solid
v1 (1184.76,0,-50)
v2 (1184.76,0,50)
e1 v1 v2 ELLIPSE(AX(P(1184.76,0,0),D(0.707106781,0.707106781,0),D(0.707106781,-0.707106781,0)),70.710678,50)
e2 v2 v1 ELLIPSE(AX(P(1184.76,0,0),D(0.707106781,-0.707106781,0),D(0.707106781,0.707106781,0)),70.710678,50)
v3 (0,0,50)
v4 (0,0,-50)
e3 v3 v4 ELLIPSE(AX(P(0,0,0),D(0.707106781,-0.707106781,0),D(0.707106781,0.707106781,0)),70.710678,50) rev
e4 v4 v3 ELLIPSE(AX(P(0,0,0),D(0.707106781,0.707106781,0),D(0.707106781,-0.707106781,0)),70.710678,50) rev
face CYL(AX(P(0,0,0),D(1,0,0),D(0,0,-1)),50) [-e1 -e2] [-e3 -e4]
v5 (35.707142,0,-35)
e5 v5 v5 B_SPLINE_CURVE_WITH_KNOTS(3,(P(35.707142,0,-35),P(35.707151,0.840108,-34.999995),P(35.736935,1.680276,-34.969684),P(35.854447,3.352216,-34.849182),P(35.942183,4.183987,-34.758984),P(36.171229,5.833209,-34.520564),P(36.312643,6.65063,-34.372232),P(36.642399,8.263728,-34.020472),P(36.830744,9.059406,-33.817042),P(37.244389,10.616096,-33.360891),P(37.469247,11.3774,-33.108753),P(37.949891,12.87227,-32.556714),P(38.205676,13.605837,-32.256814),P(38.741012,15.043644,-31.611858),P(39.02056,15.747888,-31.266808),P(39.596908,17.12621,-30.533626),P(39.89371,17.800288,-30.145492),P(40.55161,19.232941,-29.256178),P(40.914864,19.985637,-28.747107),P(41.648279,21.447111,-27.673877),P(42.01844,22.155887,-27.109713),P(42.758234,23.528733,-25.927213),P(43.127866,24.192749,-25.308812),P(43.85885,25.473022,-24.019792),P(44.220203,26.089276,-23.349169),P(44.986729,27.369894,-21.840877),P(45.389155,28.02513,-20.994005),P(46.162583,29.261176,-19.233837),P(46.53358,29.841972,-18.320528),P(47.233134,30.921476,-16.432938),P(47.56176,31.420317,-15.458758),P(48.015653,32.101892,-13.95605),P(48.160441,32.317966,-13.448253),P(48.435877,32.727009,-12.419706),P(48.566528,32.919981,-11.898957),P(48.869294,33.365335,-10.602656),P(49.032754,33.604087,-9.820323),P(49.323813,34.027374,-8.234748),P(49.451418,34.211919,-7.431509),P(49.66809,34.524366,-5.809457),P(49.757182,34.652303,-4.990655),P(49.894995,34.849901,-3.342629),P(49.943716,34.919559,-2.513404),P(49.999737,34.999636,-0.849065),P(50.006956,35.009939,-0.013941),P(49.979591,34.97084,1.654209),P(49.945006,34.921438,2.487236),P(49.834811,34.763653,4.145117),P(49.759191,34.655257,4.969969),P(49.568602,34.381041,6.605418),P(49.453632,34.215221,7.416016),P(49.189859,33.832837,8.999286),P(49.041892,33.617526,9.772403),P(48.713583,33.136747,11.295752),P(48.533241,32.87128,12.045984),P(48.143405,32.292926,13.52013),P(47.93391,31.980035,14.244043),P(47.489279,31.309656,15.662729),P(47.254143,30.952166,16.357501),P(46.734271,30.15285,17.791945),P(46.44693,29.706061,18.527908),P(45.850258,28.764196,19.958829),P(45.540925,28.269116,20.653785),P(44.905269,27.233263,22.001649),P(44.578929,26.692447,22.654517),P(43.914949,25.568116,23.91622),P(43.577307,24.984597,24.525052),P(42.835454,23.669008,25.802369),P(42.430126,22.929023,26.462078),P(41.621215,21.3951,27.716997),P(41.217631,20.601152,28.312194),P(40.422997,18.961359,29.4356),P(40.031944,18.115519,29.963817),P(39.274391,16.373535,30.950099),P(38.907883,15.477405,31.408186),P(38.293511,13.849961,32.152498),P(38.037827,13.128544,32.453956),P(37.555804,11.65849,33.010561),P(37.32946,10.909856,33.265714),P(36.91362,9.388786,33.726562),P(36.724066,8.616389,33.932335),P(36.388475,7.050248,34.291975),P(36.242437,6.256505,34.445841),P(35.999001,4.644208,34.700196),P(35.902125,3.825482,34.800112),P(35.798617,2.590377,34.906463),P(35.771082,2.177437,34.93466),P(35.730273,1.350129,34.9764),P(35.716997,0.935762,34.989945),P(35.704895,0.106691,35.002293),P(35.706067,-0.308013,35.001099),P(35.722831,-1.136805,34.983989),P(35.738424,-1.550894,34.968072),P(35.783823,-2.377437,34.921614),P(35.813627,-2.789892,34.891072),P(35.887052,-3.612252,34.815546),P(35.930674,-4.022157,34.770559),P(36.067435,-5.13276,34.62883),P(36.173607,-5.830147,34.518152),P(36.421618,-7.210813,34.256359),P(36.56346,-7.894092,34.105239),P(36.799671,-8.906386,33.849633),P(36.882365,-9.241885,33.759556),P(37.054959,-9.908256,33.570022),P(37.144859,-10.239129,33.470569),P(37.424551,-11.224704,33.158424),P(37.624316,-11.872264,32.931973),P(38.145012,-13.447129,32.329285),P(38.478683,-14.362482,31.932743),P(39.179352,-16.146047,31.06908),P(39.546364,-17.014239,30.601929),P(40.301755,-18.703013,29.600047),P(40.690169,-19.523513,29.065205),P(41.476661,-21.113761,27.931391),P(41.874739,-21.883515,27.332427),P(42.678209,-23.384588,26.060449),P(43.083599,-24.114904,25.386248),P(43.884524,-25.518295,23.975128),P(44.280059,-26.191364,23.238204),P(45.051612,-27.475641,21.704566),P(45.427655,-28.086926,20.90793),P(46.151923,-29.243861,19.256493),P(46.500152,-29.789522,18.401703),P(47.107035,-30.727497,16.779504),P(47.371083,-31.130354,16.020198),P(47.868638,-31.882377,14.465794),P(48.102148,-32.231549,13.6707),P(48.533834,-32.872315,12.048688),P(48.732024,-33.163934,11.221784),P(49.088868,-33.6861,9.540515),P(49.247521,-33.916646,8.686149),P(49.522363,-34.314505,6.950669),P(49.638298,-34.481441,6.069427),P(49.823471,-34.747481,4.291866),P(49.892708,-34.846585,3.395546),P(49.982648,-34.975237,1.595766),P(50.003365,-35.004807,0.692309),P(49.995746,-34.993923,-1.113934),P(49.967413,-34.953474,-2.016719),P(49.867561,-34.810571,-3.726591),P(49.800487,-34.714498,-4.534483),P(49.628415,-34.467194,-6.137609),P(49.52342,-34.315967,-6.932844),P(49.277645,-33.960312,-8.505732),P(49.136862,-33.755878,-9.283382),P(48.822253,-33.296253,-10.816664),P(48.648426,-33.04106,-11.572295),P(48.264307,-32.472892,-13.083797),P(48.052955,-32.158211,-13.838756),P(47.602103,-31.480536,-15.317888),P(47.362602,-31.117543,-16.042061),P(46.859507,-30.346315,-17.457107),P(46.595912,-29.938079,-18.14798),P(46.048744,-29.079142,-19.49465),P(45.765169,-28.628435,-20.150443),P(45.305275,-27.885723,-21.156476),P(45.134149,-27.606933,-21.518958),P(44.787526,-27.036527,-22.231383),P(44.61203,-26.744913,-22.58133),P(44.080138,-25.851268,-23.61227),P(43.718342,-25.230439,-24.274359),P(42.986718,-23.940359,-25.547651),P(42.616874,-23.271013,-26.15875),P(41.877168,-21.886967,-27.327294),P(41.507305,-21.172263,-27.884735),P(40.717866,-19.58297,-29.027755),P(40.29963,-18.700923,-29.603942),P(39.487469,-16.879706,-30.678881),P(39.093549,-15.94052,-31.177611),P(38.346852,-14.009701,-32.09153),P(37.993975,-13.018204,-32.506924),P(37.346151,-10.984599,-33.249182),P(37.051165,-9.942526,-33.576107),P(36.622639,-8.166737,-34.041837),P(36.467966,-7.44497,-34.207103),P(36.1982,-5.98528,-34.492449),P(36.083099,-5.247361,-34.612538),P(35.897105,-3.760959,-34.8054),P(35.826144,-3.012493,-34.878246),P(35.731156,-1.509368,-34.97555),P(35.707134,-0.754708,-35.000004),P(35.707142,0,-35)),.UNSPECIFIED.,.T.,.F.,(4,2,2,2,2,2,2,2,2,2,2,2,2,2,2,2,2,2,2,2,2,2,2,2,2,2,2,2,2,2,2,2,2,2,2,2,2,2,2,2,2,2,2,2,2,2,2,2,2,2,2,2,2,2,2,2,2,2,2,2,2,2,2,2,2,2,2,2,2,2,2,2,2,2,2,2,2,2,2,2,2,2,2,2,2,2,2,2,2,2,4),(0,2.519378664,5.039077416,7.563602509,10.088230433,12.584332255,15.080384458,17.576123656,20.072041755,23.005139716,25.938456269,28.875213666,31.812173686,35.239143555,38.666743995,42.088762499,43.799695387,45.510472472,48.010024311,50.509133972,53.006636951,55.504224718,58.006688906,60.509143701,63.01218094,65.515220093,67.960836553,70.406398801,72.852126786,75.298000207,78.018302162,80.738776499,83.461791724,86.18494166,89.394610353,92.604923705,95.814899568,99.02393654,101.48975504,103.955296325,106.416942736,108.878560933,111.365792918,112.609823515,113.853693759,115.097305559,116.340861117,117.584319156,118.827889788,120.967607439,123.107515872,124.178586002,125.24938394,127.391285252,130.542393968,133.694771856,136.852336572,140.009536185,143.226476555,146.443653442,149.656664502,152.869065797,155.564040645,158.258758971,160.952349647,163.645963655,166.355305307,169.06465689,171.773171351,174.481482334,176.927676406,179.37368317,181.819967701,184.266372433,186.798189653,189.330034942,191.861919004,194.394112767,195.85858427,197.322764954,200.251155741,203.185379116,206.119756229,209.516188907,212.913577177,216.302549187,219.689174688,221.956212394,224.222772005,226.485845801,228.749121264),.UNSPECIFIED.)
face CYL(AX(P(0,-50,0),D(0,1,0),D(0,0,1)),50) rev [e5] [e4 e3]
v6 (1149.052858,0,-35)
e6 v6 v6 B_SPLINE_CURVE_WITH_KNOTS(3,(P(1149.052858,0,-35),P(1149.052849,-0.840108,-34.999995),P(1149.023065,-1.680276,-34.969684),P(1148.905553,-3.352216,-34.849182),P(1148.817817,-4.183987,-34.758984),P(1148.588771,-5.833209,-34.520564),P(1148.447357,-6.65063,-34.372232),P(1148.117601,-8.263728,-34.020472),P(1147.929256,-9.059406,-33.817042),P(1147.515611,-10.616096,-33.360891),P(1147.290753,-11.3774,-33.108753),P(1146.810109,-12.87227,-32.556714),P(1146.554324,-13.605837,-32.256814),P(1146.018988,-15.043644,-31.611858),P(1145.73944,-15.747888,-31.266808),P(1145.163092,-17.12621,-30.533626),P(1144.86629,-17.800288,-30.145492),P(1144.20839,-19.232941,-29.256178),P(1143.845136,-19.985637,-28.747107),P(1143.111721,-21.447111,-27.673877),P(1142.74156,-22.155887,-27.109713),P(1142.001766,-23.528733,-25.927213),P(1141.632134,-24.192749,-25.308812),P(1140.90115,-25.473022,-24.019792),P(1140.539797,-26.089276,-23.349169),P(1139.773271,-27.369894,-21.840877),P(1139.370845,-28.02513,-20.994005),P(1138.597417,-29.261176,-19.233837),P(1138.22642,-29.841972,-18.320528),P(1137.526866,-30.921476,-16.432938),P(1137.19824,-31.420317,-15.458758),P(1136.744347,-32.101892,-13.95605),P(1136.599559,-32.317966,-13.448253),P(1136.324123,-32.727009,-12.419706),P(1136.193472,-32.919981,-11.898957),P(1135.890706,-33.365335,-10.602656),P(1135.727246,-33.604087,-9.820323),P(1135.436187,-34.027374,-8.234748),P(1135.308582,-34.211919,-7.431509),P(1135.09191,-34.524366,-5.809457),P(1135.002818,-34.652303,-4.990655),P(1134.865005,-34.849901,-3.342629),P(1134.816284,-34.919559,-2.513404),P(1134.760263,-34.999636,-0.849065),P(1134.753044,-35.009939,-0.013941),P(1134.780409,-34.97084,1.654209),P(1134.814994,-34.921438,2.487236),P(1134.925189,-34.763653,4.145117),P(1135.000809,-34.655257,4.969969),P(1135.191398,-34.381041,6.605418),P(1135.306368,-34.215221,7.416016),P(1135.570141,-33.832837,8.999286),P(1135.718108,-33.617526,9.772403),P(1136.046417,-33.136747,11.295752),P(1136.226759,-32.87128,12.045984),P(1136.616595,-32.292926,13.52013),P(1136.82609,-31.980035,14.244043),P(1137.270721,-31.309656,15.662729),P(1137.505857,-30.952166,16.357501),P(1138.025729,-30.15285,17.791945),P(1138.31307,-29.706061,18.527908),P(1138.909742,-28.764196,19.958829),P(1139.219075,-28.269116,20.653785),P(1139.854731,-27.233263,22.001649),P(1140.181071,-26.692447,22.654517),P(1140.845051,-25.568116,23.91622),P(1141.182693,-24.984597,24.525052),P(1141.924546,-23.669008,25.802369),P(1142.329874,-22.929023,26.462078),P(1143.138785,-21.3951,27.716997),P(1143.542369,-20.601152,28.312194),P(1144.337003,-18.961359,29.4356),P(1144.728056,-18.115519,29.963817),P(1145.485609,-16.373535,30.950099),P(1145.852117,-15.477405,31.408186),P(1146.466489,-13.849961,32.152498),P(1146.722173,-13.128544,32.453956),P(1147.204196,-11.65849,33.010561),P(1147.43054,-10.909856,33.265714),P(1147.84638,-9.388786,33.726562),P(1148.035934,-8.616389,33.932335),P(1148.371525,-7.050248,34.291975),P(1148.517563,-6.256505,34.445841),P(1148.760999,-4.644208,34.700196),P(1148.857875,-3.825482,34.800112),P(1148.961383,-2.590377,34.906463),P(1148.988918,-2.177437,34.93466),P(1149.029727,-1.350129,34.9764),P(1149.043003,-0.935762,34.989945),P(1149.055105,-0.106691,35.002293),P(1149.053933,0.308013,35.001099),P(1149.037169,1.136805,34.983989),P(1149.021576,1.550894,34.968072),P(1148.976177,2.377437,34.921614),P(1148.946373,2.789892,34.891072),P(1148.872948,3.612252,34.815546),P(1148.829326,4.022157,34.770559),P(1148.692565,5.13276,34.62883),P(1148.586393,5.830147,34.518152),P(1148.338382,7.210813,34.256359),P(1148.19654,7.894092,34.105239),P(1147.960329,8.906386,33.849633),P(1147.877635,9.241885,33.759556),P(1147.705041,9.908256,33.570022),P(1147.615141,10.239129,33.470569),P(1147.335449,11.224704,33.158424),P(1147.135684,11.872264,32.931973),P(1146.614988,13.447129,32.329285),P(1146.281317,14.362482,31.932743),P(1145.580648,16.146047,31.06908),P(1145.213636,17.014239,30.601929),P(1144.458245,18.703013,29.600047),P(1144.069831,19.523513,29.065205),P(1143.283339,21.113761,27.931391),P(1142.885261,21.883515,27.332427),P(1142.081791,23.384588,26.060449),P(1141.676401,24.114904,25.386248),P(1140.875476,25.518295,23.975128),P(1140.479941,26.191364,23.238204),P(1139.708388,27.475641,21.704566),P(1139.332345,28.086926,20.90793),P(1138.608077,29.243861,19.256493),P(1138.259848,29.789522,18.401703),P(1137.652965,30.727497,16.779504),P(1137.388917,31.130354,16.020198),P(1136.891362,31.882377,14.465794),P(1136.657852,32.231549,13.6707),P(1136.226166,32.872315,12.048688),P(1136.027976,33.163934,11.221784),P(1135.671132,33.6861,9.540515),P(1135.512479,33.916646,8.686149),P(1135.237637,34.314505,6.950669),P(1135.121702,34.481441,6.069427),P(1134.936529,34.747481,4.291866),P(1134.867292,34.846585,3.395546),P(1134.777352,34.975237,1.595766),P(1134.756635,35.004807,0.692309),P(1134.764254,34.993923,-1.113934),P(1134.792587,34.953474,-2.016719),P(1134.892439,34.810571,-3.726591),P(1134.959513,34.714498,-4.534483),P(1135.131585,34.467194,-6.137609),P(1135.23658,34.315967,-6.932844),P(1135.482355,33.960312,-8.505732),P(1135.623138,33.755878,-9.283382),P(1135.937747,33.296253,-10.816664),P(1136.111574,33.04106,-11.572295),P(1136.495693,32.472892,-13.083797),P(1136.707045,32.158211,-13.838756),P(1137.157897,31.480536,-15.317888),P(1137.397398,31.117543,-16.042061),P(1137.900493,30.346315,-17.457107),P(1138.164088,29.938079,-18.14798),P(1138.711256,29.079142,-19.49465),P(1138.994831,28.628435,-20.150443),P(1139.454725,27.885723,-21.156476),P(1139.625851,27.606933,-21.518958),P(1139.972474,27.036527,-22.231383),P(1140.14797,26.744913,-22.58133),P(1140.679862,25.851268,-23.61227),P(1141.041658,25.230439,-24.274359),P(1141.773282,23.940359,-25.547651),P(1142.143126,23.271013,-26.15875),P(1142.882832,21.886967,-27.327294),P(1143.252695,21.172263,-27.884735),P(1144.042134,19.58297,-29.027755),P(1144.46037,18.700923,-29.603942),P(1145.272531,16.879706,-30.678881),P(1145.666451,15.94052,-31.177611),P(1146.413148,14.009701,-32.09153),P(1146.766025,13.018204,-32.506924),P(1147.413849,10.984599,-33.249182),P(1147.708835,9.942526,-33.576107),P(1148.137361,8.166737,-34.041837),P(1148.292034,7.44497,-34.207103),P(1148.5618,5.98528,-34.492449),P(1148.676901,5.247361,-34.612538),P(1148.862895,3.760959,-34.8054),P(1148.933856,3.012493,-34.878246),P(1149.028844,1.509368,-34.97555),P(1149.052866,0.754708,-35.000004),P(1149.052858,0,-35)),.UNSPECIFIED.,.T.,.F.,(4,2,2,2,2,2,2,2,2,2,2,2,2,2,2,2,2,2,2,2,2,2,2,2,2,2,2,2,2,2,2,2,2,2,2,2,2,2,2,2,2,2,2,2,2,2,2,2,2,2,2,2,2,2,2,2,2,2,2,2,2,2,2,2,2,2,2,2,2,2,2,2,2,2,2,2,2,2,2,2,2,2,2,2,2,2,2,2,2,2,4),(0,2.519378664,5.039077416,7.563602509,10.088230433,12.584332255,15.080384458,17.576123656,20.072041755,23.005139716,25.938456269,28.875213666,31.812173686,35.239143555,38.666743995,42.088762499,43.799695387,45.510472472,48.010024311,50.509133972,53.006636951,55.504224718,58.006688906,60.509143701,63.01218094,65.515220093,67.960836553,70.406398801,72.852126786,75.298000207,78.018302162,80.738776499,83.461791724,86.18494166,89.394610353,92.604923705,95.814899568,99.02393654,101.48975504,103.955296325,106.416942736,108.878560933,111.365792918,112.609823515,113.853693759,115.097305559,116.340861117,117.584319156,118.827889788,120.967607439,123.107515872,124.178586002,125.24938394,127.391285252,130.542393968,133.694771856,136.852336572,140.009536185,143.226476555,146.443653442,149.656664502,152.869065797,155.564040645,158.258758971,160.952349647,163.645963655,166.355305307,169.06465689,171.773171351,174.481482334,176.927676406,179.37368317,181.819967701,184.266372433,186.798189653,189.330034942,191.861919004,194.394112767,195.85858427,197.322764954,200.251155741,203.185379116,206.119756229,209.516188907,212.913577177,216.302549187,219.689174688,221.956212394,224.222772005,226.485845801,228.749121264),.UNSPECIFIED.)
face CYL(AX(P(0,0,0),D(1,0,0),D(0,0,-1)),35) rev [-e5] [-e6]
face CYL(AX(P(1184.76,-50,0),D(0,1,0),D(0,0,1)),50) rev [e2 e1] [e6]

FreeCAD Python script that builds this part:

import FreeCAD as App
import Part
import Sketcher

V = App.Vector
Q = App.Units.Quantity

doc = App.newDocument("Part")
body = doc.addObject("PartDesign::Body", "Body")

# Sketch on YZ plane
sketch1 = doc.addObject("Sketcher::SketchObject", "Sketch")
body.addObject(sketch1)
sketch1.AttachmentSupport = (doc.YZ_Plane, [""])
sketch1.MapMode = "FlatFace"
sketch1.addGeometry([
    Part.Circle(V(0, 0, 0), V(0, 0, 1), 50),
    Part.Circle(V(0, 0, 0), V(0, 0, 1), 35),
], False)
sketch1.addConstraint([
    Sketcher.Constraint("Coincident", 0, 3, -1, 1),
    Sketcher.Constraint("Coincident", 1, 3, -1, 1),
    Sketcher.Constraint("Diameter", 0, Q("100 mm")),
    Sketcher.Constraint("Diameter", 1, Q("70 mm")),
])

# Sketch on XY plane
sketch2 = doc.addObject("Sketcher::SketchObject", "Sketch001")
body.addObject(sketch2)
sketch2.AttachmentSupport = (doc.XY_Plane, [""])
sketch2.MapMode = "FlatFace"
sketch2.addGeometry(Part.LineSegment(V(0, 0, 0), V(1184.76, 0, 0)), False)
sketch2.addConstraint([
    Sketcher.Constraint("Horizontal", 0),
    Sketcher.Constraint("Coincident", 0, 1, -1, 1),
    Sketcher.Constraint("DistanceX", 0, 1, 0, 2, Q("1184.76 mm")),
])
doc.recompute()

additivepipe = doc.addObject("PartDesign::AdditivePipe", "AdditivePipe")
body.addObject(additivepipe)
additivepipe.Profile = sketch1
additivepipe.Spine = (sketch2, ["Edge1"])

# Sketch on XZ plane
sketch3 = doc.addObject("Sketcher::SketchObject", "Sketch002")
body.addObject(sketch3)
sketch3.AttachmentSupport = (doc.XZ_Plane, [""])
sketch3.MapMode = "FlatFace"
sketch3.addGeometry([
    Part.Circle(V(0, 0, 0), V(0, 0, 1), 50),
    Part.Circle(V(1184.76, 0, 0), V(0, 0, 1), 50),
], False)
sketch3.addConstraint([
    Sketcher.Constraint("Coincident", 0, 3, -1, 1),
    Sketcher.Constraint("Equal", 0, 1),
    Sketcher.Constraint("PointOnObject", 1, 3, -1),
    Sketcher.Constraint("Diameter", 0, Q("100 mm")),
    Sketcher.Constraint("DistanceX", -1, 1, 1, 3, Q("1184.76 mm")),
])
pocket1 = doc.addObject("PartDesign::Pocket", "Pocket")
body.addObject(pocket1)
pocket1.Profile = sketch3
pocket1.Type = "ThroughAll"
pocket1.Midplane = True

doc.recompute()
